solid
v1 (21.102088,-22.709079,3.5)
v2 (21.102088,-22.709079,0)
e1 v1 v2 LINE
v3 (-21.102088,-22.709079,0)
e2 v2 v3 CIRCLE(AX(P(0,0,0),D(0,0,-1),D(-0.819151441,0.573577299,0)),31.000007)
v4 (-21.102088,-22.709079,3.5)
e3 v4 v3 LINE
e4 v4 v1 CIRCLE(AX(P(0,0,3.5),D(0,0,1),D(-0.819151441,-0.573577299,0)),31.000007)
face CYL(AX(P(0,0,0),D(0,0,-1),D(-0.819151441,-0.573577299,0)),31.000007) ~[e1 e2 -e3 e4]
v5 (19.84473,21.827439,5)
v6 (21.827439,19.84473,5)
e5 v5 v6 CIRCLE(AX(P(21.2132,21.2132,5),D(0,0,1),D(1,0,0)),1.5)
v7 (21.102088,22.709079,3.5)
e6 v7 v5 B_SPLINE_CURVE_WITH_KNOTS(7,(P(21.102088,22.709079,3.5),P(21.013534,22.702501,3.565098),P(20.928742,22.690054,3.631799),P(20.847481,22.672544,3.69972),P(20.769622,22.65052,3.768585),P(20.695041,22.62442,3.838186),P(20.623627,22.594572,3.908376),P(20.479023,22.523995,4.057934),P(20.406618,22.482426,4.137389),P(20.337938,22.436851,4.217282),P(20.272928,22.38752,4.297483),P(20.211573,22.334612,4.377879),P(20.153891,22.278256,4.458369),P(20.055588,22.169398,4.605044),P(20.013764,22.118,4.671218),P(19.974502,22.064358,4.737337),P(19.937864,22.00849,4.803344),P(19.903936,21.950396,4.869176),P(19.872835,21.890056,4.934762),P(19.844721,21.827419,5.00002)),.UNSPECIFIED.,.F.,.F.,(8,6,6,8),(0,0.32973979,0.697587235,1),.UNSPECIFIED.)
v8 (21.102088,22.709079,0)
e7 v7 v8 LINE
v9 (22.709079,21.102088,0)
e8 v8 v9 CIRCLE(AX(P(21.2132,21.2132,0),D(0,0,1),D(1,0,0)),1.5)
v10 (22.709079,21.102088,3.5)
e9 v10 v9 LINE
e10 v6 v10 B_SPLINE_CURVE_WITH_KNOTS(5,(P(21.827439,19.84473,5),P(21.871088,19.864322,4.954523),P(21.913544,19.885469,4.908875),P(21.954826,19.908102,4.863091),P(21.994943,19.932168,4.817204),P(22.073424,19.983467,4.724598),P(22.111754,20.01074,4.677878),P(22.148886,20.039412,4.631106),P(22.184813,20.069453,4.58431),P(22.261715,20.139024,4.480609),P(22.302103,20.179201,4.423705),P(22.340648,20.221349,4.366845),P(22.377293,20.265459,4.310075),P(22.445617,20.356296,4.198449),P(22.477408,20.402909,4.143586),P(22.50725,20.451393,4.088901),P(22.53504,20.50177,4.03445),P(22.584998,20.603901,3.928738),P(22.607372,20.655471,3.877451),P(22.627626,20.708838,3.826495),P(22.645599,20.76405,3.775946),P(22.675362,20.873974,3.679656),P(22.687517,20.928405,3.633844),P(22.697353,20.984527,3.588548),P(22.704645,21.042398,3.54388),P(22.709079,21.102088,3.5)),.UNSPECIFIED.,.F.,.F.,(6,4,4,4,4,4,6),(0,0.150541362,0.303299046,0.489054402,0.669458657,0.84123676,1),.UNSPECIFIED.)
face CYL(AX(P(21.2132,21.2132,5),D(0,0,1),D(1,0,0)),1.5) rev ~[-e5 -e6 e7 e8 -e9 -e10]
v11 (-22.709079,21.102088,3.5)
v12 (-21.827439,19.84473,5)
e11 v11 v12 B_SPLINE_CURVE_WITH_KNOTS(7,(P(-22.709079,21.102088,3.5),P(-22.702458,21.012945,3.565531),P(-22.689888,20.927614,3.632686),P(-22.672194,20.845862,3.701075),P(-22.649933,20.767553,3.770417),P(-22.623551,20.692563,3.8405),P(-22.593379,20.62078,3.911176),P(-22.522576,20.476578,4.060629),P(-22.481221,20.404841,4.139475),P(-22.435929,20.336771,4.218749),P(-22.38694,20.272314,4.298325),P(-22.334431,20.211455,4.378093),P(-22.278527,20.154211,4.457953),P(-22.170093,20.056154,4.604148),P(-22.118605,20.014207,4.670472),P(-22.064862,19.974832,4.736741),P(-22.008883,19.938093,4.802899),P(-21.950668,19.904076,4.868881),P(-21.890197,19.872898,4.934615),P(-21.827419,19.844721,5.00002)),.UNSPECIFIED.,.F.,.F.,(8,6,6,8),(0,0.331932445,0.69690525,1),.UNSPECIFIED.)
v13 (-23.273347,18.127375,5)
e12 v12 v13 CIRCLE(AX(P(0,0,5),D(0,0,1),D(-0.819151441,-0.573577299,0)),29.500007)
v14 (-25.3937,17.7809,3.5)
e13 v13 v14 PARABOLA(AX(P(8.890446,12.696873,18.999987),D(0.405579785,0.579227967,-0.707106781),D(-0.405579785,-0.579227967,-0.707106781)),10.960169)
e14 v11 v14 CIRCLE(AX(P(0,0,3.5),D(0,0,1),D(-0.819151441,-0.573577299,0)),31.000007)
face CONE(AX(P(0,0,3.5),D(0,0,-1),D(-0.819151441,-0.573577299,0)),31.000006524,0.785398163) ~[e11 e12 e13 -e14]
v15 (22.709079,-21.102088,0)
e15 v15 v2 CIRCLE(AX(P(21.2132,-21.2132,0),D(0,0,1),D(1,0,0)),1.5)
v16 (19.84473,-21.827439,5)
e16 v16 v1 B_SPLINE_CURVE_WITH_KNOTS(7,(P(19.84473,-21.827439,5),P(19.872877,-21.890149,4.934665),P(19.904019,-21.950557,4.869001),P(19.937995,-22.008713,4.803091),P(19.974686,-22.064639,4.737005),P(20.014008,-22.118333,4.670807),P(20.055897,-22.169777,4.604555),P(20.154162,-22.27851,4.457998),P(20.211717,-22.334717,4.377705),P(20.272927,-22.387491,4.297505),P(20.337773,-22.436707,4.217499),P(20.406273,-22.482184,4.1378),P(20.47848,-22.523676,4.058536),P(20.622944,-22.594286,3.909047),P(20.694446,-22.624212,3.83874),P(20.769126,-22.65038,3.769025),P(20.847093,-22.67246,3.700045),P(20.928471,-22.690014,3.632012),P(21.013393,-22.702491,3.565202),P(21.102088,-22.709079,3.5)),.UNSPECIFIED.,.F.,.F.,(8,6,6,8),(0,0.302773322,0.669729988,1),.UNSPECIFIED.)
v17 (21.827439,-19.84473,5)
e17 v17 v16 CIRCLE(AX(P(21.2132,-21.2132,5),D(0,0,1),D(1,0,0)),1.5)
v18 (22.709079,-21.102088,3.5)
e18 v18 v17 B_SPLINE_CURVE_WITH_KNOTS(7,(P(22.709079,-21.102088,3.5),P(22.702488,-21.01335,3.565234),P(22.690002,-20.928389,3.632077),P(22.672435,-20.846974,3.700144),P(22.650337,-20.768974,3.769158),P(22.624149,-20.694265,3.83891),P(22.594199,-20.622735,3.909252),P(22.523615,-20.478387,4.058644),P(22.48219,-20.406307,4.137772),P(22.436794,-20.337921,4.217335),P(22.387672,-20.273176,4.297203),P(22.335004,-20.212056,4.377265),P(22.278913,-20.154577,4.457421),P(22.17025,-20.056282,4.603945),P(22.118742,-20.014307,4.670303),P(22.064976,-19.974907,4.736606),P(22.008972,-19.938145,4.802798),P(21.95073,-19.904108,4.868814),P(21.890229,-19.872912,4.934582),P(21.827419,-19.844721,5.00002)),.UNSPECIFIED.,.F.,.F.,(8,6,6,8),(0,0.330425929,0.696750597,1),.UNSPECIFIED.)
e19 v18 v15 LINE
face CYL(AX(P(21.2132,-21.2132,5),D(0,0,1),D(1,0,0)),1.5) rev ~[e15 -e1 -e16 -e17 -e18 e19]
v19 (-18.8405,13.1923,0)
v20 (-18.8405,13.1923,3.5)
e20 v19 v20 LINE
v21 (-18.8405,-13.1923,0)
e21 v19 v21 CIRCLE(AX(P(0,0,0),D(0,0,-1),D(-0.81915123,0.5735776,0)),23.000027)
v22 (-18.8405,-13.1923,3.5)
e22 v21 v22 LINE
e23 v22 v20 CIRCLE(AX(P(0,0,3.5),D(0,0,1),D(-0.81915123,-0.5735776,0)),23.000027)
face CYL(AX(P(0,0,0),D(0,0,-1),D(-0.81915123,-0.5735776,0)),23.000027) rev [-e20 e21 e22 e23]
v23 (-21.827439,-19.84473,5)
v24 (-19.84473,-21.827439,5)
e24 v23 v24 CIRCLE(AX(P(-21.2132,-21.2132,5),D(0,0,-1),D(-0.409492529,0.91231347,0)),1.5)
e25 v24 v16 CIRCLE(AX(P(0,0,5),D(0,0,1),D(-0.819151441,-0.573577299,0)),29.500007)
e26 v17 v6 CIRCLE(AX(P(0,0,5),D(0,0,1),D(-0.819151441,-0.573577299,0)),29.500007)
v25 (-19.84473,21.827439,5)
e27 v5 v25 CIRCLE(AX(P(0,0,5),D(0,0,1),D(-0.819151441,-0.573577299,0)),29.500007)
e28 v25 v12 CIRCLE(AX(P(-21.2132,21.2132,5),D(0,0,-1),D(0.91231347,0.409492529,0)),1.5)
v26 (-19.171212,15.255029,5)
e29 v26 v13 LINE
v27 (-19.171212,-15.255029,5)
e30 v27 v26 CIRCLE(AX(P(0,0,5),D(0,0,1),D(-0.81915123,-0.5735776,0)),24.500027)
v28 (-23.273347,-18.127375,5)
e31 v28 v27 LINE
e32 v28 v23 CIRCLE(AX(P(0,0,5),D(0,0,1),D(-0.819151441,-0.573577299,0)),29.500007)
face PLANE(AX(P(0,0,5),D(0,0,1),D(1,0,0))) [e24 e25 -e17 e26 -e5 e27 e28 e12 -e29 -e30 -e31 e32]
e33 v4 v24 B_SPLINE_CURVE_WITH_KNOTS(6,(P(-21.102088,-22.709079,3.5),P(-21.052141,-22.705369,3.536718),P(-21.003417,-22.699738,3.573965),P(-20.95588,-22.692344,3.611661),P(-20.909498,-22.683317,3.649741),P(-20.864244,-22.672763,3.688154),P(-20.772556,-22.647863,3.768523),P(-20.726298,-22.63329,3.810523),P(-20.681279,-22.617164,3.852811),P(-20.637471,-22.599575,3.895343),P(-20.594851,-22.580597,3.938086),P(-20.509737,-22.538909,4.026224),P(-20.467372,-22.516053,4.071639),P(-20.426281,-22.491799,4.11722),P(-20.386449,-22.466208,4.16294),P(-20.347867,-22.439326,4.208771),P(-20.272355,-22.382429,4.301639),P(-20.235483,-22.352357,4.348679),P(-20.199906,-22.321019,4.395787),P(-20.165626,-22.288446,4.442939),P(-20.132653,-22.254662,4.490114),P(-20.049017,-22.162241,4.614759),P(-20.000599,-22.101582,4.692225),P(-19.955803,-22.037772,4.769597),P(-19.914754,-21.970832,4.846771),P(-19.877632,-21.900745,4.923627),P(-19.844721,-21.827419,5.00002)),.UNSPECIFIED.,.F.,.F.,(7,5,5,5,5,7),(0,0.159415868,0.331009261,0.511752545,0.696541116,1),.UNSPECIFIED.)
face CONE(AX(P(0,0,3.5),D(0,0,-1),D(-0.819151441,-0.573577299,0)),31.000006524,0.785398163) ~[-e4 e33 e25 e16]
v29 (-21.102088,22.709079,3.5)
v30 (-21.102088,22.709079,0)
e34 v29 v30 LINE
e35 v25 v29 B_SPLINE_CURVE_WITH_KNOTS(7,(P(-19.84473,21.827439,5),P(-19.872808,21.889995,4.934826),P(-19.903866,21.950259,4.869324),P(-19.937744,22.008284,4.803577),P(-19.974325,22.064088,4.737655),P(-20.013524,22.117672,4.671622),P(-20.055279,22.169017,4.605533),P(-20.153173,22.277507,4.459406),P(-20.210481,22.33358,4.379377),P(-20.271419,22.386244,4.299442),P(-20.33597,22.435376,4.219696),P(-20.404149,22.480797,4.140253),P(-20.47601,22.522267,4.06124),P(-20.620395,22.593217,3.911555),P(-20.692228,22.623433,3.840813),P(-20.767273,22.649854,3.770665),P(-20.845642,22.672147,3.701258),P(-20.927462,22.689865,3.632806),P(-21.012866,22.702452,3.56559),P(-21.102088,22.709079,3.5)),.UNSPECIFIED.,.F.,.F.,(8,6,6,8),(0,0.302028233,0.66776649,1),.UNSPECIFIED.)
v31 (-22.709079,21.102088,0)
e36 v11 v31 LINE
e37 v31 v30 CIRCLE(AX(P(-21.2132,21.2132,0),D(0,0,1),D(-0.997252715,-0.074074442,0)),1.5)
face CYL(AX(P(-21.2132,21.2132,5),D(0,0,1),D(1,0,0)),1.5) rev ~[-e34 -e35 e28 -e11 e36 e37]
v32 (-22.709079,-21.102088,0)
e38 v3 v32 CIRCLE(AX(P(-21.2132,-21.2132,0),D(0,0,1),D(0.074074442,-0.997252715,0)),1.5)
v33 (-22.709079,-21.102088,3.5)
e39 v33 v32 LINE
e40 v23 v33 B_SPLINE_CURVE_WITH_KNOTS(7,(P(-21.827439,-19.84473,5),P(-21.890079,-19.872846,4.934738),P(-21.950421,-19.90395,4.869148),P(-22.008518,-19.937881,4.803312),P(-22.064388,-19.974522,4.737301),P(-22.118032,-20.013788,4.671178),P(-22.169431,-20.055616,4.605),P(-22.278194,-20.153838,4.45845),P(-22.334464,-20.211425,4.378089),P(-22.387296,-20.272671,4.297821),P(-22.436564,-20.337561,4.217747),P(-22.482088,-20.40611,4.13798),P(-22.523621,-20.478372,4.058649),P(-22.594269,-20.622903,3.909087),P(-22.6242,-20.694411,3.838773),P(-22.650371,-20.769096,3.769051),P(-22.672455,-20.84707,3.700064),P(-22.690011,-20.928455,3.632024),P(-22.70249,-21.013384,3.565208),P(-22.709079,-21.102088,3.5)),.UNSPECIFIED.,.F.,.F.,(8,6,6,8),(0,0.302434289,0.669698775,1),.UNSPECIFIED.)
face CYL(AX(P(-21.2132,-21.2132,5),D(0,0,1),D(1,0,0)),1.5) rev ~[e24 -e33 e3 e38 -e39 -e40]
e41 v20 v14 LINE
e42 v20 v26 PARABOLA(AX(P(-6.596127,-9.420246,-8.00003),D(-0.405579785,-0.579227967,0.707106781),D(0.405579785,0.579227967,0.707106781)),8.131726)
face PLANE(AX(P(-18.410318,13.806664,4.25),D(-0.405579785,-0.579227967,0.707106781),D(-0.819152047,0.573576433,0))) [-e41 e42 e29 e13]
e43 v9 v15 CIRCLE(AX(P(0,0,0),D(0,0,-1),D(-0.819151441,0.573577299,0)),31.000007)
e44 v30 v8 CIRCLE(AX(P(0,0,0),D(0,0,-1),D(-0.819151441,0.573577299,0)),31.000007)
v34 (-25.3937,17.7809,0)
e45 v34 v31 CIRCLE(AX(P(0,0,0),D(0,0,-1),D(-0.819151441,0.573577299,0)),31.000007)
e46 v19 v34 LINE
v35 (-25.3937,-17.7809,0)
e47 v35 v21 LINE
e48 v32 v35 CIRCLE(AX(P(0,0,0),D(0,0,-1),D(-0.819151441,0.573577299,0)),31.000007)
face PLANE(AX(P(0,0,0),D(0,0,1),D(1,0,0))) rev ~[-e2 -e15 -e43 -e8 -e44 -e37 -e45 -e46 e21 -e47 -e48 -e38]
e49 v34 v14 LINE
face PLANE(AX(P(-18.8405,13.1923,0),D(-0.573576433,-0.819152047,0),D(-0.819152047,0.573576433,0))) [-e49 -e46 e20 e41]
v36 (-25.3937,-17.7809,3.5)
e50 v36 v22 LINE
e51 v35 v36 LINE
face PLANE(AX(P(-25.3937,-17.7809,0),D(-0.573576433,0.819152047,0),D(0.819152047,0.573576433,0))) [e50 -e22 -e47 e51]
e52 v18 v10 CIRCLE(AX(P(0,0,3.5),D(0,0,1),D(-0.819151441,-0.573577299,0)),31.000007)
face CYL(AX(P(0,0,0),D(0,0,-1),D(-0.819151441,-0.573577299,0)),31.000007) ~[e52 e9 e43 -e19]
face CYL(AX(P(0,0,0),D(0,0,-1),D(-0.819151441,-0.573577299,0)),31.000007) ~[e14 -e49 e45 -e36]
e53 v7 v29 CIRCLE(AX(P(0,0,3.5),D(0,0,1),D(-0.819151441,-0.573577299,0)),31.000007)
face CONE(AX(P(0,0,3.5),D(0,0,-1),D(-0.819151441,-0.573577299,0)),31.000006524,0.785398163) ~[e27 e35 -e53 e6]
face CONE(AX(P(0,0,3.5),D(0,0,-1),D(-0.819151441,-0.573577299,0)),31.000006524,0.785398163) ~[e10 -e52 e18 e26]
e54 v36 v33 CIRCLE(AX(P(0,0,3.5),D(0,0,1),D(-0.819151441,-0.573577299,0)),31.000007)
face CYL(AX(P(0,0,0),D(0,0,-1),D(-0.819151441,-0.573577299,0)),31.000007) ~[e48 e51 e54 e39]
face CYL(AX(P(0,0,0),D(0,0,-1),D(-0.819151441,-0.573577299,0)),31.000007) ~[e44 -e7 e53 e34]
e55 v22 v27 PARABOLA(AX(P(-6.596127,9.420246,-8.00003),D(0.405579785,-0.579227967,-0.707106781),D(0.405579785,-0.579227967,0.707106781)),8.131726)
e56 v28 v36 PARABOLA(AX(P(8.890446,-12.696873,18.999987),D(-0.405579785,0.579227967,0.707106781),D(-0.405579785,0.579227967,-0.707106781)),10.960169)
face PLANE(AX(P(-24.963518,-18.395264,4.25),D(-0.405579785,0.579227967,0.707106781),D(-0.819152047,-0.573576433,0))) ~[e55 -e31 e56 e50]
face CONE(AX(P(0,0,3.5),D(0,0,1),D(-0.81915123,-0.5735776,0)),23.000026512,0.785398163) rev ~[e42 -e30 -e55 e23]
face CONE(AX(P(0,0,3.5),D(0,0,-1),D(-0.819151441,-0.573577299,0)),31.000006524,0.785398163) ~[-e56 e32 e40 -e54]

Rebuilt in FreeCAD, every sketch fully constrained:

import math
import FreeCAD as App
import Part
import Sketcher
Q = App.Units.Quantity


def edges_at(feature, points):
    """Names of the edges that pass closest to the given points."""
    edges = feature.Shape.Edges
    near = lambda p: min(range(len(edges)), key=lambda i: edges[i].distToShape(Part.Vertex(*p))[0])
    return sorted({f"Edge{near(p) + 1}" for p in points})

doc = App.newDocument("Part")
body = doc.addObject("PartDesign::Body", "Body")

# Sketch on XY plane
sketch1 = body.newObject("Sketcher::SketchObject", "Sketch")
sketch1.AttachmentSupport = (doc.getObject("XY_Plane"), [""])
sketch1.MapMode = "FlatFace"
sketch1.addGeometry(Part.LineSegment(App.Vector(-19, -13, 0), App.Vector(-25, -18, 0)), False)
sketch1.addGeometry(Part.ArcOfCircle(Part.Circle(App.Vector(0, 0, 0), App.Vector(0, 0, 1), 31), math.radians(-145), math.radians(145)), False)
sketch1.addGeometry(Part.LineSegment(App.Vector(-25, 18, 0), App.Vector(-19, 13, 0)), False)
sketch1.addGeometry(Part.ArcOfCircle(Part.Circle(App.Vector(0, 0, 0), App.Vector(0, 0, 1), 23), math.radians(-145), math.radians(145)), False)
sketch1.addConstraint(Sketcher.Constraint("Coincident", 0, 2, 1, 1))
sketch1.addConstraint(Sketcher.Constraint("Coincident", 1, 2, 2, 1))
sketch1.addConstraint(Sketcher.Constraint("Coincident", 2, 2, 3, 2))
sketch1.addConstraint(Sketcher.Constraint("Coincident", 3, 1, 0, 1))
sketch1.addConstraint(Sketcher.Constraint("Coincident", 1, 3, -1, 1))
sketch1.addConstraint(Sketcher.Constraint("Coincident", 3, 3, -1, 1))
sketch1.addConstraint(Sketcher.Constraint("Vertical", 0, 2, 1, 2))
sketch1.addConstraint(Sketcher.Constraint("Vertical", 2, 2, 3, 1))
sketch1.addConstraint(Sketcher.Constraint("Radius", 3, Q("23 mm")))
sketch1.addConstraint(Sketcher.Constraint("Distance", 0, Q("8 mm")))
sketch1.addConstraint(Sketcher.Constraint("Angle", 0, Q("-145 deg")))
sketch1.addConstraint(Sketcher.Constraint("DistanceY", 0, 2, -1, 1, Q("17.781 mm")))
pad1 = body.newObject("PartDesign::Pad", "Pad")
pad1.Profile = sketch1
pad1.Length = 5
doc.recompute()

chamfer = body.newObject("PartDesign::Chamfer", "Chamfer")
chamfer.Base = (pad1, edges_at(pad1, [
    (31, 0, 5),
    (6.916, -21.936, 5),
    (6.916, 21.936, 5),
    (-22.117, 15.487, 5),
    (-22.117, -15.487, 5),
]))
chamfer.Size = 1.5

# Sketch on XY plane
sketch2 = body.newObject("Sketcher::SketchObject", "Sketch001")
sketch2.AttachmentSupport = (doc.getObject("XY_Plane"), [""])
sketch2.MapMode = "FlatFace"
sketch2.AttachmentOffset = App.Placement(App.Vector(0, 0, 5), App.Rotation())
sketch2.addGeometry(Part.Circle(App.Vector(-21.2, 21.2, 0), App.Vector(0, 0, 1), 1.5), False)
sketch2.addGeometry(Part.Circle(App.Vector(21.2, 21.2, 0), App.Vector(0, 0, 1), 1.5), False)
sketch2.addGeometry(Part.Circle(App.Vector(21.2, -21.2, 0), App.Vector(0, 0, 1), 1.5), False)
sketch2.addGeometry(Part.Circle(App.Vector(-21.2, -21.2, 0), App.Vector(0, 0, 1), 1.5), False)
sketch2.addConstraint(Sketcher.Constraint("Equal", 0, 1))
sketch2.addConstraint(Sketcher.Constraint("Equal", 1, 2))
sketch2.addConstraint(Sketcher.Constraint("Equal", 2, 3))
sketch2.addConstraint(Sketcher.Constraint("Symmetric", 0, 3, 2, 3, -1, 1))
sketch2.addConstraint(Sketcher.Constraint("Symmetric", 1, 3, 3, 3, -1, 1))
sketch2.addConstraint(Sketcher.Constraint("Symmetric", 0, 3, 1, 3, -2))
sketch2.addConstraint(Sketcher.Constraint("Diameter", 0, Q("3 mm")))
sketch2.addConstraint(Sketcher.Constraint("DistanceX", 0, 3, -1, 1, Q("21.2132 mm")))
sketch2.addConstraint(Sketcher.Constraint("DistanceY", -1, 1, 0, 3, Q("21.2132 mm")))
pocket1 = body.newObject("PartDesign::Pocket", "Pocket")
pocket1.Profile = sketch2
pocket1.Type = "ThroughAll"

doc.recompute()
